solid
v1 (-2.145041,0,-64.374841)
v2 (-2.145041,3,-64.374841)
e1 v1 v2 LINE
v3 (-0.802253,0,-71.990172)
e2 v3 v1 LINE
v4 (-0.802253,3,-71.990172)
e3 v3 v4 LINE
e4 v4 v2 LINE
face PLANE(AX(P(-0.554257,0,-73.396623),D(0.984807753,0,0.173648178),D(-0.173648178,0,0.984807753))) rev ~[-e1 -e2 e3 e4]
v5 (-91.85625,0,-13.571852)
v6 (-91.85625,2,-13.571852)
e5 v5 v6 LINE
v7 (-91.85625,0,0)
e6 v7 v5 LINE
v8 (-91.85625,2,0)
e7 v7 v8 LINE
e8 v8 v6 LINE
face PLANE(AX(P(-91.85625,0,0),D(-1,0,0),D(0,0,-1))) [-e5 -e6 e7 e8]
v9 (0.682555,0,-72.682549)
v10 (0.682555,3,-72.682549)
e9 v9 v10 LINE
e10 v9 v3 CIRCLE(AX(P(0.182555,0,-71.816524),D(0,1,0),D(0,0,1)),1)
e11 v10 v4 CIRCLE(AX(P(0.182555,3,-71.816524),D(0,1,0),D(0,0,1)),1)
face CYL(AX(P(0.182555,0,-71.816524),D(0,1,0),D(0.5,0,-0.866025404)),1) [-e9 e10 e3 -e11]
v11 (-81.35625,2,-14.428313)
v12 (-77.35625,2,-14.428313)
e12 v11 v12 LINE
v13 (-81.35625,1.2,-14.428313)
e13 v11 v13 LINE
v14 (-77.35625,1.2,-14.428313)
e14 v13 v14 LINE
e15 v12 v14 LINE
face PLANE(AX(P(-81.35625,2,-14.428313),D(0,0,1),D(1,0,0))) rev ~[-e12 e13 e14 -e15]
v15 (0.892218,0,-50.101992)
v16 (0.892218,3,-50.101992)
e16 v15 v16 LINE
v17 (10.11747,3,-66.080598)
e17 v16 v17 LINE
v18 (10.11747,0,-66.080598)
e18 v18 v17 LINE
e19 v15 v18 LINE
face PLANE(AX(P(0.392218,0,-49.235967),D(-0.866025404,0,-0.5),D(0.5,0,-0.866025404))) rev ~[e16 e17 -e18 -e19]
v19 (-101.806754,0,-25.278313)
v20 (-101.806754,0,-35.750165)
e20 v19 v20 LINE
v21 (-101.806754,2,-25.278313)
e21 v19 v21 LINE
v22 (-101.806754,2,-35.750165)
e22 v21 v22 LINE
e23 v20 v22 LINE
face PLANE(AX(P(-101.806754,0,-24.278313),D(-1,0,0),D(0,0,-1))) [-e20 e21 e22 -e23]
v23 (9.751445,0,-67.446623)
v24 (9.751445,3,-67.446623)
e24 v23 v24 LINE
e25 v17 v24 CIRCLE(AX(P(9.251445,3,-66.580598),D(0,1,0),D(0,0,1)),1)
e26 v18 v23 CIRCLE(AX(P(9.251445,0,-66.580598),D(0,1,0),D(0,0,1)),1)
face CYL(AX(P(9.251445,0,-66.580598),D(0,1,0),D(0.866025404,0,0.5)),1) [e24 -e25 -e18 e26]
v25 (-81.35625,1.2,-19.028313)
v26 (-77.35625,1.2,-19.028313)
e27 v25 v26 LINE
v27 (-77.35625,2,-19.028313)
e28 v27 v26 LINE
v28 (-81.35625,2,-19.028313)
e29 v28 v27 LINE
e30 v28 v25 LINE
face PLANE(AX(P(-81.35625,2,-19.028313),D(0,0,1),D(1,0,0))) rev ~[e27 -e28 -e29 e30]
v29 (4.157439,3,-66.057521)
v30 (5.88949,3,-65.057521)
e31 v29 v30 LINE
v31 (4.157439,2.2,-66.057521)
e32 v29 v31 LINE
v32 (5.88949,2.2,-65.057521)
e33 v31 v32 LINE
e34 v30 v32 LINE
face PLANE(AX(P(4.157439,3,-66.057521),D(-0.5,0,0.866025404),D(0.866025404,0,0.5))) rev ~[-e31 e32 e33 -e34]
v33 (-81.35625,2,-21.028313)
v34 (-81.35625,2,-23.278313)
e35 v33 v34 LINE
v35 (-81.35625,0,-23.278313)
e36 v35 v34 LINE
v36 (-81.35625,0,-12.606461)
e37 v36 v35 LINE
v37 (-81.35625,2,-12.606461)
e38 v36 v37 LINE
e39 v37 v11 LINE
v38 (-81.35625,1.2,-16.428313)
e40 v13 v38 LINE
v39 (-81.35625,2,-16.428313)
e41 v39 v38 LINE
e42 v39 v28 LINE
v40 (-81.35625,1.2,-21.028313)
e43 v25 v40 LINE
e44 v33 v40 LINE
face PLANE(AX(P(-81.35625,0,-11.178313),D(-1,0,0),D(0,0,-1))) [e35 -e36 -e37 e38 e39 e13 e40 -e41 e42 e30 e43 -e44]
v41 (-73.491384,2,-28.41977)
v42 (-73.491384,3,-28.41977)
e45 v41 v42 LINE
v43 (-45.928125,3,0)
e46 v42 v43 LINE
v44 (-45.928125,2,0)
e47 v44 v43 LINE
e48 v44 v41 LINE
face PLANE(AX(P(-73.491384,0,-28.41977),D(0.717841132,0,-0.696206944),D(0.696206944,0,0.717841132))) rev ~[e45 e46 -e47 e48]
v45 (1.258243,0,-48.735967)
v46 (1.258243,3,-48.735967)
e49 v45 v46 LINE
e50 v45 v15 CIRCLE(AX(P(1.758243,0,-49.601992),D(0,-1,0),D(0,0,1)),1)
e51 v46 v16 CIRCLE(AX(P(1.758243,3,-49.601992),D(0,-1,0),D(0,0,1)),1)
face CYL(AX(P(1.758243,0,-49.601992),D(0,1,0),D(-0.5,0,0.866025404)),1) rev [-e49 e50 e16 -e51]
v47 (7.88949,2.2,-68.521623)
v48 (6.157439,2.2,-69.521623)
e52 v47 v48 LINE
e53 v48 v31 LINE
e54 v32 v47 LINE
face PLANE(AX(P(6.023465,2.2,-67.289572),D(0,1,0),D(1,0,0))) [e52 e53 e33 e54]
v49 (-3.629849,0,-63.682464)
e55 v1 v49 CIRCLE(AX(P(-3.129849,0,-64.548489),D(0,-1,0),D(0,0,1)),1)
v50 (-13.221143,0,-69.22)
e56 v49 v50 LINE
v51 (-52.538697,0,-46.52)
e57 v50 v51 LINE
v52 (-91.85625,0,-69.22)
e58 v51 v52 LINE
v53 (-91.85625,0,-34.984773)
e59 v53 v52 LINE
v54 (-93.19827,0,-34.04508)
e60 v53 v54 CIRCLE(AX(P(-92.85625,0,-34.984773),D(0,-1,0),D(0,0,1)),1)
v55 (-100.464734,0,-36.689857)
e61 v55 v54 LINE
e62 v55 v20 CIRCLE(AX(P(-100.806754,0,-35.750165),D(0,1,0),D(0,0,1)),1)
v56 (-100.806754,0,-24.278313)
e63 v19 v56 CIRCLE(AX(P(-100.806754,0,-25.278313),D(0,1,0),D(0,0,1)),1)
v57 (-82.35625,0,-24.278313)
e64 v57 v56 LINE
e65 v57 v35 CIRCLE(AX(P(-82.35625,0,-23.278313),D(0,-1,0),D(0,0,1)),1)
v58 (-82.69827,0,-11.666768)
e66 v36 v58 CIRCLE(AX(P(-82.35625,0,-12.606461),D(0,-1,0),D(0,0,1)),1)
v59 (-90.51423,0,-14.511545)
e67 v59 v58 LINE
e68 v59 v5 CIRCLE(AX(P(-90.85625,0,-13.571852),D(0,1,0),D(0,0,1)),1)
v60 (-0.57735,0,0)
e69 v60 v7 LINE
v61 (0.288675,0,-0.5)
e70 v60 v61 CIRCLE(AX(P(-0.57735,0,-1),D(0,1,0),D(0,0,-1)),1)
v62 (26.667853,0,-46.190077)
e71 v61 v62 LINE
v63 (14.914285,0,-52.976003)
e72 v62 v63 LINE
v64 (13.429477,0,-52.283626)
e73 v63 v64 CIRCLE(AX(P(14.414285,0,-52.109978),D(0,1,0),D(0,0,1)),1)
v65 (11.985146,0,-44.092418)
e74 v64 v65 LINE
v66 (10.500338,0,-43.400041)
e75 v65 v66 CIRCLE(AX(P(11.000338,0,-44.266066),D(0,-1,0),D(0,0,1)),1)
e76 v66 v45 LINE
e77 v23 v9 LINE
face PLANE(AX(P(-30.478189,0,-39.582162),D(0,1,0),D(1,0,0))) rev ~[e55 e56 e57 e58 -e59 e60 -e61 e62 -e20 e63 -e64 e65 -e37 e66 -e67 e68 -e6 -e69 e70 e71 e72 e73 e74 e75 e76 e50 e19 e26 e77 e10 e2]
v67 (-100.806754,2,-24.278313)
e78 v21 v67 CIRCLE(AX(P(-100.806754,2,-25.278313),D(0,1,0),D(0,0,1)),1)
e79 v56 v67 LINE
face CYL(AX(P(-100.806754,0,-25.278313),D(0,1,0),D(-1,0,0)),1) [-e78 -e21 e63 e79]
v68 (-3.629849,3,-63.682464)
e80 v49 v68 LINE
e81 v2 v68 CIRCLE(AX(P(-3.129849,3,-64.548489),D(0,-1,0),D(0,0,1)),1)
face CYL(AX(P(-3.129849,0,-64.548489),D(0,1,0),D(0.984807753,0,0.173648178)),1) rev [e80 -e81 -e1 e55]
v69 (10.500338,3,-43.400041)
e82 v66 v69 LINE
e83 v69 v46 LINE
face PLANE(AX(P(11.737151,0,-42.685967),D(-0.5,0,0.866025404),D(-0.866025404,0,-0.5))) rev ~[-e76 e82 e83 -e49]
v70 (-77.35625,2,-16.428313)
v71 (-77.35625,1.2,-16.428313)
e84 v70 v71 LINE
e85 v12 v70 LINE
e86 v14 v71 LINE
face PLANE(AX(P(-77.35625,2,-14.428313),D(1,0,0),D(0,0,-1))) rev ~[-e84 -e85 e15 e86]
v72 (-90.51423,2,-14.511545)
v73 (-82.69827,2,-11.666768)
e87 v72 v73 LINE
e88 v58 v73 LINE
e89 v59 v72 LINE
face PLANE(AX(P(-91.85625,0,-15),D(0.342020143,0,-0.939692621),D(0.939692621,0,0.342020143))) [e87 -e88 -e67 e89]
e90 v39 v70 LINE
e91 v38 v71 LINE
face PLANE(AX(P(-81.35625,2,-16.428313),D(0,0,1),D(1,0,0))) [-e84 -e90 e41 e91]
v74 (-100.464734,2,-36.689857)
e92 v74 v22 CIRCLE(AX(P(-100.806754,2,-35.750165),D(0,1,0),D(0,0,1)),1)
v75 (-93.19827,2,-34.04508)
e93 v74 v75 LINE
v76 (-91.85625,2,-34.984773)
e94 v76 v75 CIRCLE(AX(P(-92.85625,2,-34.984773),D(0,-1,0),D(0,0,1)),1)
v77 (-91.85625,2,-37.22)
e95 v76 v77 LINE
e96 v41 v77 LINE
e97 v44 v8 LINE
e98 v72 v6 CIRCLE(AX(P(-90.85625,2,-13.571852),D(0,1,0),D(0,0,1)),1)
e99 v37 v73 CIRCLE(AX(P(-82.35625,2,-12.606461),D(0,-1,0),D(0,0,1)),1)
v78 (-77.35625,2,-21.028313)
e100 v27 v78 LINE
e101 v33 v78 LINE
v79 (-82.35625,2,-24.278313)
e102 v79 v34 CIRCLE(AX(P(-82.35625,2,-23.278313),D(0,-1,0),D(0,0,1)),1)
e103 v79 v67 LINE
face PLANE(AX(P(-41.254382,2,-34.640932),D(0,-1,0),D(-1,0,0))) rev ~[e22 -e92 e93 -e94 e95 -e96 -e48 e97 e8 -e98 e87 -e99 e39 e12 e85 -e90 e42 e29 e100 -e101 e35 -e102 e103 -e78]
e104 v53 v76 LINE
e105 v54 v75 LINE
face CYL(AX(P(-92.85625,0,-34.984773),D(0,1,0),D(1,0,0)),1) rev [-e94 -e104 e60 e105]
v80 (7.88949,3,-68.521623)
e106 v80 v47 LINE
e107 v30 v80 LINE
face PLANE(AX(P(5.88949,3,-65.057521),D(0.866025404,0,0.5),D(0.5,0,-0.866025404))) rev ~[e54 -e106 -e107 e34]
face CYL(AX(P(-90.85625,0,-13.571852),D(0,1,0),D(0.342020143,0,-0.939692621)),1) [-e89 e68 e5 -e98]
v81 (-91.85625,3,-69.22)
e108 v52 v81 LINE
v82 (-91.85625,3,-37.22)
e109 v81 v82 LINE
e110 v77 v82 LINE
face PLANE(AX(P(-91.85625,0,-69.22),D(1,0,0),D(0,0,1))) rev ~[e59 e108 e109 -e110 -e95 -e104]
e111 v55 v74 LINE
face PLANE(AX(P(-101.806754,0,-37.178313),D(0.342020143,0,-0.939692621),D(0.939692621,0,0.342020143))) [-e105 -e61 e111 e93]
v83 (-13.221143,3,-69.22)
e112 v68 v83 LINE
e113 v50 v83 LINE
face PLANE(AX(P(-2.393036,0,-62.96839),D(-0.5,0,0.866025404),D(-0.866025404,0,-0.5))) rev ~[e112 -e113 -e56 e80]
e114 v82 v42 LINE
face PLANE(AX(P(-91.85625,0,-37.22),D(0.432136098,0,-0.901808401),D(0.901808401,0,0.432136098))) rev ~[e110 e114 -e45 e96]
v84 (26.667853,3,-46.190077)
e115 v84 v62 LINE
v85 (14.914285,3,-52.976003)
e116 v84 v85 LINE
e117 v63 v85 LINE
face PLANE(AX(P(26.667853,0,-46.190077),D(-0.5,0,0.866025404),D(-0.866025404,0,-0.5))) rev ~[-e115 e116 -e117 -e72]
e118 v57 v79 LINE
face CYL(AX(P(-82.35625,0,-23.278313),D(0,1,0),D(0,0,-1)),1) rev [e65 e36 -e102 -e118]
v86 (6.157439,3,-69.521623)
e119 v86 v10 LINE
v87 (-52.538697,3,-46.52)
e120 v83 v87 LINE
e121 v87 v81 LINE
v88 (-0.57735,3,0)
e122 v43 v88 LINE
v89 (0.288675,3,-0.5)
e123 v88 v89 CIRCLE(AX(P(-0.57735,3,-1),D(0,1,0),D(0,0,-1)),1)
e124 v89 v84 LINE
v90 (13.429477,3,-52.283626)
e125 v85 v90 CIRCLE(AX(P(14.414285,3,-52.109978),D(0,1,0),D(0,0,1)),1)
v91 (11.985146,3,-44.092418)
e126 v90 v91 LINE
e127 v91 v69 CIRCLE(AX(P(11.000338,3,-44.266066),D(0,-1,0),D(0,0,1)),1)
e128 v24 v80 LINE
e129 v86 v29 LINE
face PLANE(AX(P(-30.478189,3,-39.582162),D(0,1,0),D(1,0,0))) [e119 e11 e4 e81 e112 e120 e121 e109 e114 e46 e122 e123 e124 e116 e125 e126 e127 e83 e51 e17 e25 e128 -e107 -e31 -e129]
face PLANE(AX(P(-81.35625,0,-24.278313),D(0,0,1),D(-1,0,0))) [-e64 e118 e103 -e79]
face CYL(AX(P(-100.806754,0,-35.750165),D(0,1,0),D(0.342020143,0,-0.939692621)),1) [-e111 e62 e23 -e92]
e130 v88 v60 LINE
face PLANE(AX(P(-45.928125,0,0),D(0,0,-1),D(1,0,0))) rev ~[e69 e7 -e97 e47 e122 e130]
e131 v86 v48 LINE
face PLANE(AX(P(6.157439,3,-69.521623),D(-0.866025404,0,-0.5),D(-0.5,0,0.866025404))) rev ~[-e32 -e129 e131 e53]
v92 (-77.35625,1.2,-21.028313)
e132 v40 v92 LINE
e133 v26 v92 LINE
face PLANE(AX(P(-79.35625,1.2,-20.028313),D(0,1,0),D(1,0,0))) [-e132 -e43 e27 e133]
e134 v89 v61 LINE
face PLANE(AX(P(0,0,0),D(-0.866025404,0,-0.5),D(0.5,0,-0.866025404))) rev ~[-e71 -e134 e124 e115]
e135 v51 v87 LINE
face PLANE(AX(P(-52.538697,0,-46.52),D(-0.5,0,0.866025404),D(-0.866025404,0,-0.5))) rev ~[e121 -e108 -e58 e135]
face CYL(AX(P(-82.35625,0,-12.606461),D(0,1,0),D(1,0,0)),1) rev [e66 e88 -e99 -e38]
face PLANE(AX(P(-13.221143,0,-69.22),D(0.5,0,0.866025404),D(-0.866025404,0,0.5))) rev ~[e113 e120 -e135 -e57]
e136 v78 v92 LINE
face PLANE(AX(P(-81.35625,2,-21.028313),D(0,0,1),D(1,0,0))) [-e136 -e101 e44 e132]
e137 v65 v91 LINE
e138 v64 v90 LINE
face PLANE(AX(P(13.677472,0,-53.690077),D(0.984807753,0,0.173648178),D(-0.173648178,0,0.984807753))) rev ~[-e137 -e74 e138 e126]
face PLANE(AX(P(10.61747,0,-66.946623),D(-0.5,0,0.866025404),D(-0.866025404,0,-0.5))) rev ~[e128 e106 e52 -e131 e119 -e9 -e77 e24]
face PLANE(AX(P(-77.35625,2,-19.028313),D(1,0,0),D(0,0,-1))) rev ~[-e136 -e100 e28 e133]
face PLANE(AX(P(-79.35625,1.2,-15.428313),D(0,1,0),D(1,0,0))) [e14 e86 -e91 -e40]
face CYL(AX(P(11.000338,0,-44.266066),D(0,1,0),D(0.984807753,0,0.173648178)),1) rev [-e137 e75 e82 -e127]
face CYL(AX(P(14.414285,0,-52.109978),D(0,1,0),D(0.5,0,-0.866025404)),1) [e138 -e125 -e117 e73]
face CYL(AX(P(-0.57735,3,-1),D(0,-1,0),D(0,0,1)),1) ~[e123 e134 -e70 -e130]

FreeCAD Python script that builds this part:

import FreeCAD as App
import Part
import Sketcher
Q = App.Units.Quantity


def edges_at(feature, points):
    """Names of the edges that pass closest to the given points."""
    edges = feature.Shape.Edges
    near = lambda p: min(range(len(edges)), key=lambda i: edges[i].distToShape(Part.Vertex(*p))[0])
    return sorted({f"Edge{near(p) + 1}" for p in points})


def add_polygon(sketch, points):
    """Adds a closed chain of lines whose ends are joined by coincident constraints."""
    first, n = sketch.GeometryCount, len(points)
    for a, b in zip(points, points[1:] + points[:1]):
        sketch.addGeometry(Part.LineSegment(App.Vector(*a, 0), App.Vector(*b, 0)), False)
    for i in range(n):
        sketch.addConstraint(Sketcher.Constraint("Coincident", first + i, 2, first + (i + 1) % n, 1))

doc = App.newDocument("Part")
params = doc.addObject("Spreadsheet::Sheet", "Params")
for row, (alias, value) in enumerate([
    ("sketch1_height", "32 mm"),
    ("sketch1_length", "15 mm"),
    ("sketch1_length2", "13.1 mm"),
    ("sketch1_length3", "12.9 mm"),
    ("sketch1_length4", "45.4 mm"),
    ("pad1_length", "3 mm"),
    ("sketch2_height", "15 mm"),
    ("sketch2_length", "15 mm"),
    ("sketch2_height2", "12.9 mm"),
    ("sketch2_height3", "13.1 mm"),
    ("sketch2_length2", "13.1 mm"),
    ("pad2_length", "2 mm"),
    ("fillet_radius", "1 mm"),
    ("sketch3_width", "4 mm"),
    ("sketch3_height", "2 mm"),
    ("pocket1_length", "0.8 mm"),
    ("sketch4_length", "2 mm"),
    ("sketch4_length2", "4 mm"),
    ("pocket2_length", "0.8 mm"),
], start=1):
    params.set(f"A{row}", alias)
    params.set(f"B{row}", "=" + value)
    params.setAlias(f"B{row}", alias)

body = doc.addObject("PartDesign::Body", "Body")

# Sketch on XZ plane
sketch1 = doc.addObject("Sketcher::SketchObject", "Sketch")
body.addObject(sketch1)
sketch1.AttachmentSupport = (doc.XZ_Plane, [""])
sketch1.MapMode = "FlatFace"
add_polygon(sketch1, [(27, -46), (14, -54), (12, -43), (0, -49), (11, -67), (-1, -73), (-2, -63), (-13, -69), (-53, -47), (-92, -69), (-92, -37), (-73, -28), (-46, 0), (0, 0)])  # lines 0-13
sketch1.addConstraint([
    Sketcher.Constraint("Vertical", 9),
    Sketcher.Constraint("Horizontal", 12),
    Sketcher.Constraint("Coincident", 12, 2, -1, 1),
    Sketcher.Constraint("Parallel", 0, 2),
    Sketcher.Constraint("Perpendicular", 2, 3),
    Sketcher.Constraint("Perpendicular", 3, 4),
    Sketcher.Constraint("Parallel", 1, 5),
    Sketcher.Constraint("Parallel", 4, 6),
    Sketcher.Constraint("Parallel", 6, 8),
    Sketcher.Constraint("Perpendicular", 8, 13),
    Sketcher.Constraint("Horizontal", 6, 2, 8, 2),
    Sketcher.Constraint("Equal", 7, 8),
    Sketcher.Constraint("DistanceY", 9, 1, 9, 2, 32.0),
    Sketcher.Constraint("Angle", 0, Q("-150 deg")),
    Sketcher.Constraint("Angle", 1, Q("100 deg")),
    Sketcher.Constraint("Distance", 0, 15.0),
    Sketcher.Constraint("Distance", 2, 13.1),
    Sketcher.Constraint("Distance", 4, 12.9),
    Sketcher.Constraint("Distance", 7, 45.4),
    Sketcher.Constraint("DistanceY", 6, 2, -1, 1, 69.22),
    Sketcher.Constraint("Distance", 6, 12.503221),
    Sketcher.Constraint("DistanceX", 12, 1, 12, 2, 45.928125),
    Sketcher.Constraint("DistanceX", -1, 1, 1, 2, 11.737151),
    Sketcher.Constraint("DistanceX", -1, 1, 3, 2, 10.61747),
    Sketcher.Constraint("DistanceX", 8, 2, -1, 1, 91.85625),
    Sketcher.Constraint("DistanceY", 10, 2, -1, 1, 28.41977),
    Sketcher.Constraint("DistanceX", 10, 2, 6, 2, 60.270241),
])
sketch1.setExpression("Constraints[26]", "Params.sketch1_height")
sketch1.setExpression("Constraints[29]", "Params.sketch1_length")
sketch1.setExpression("Constraints[30]", "Params.sketch1_length2")
sketch1.setExpression("Constraints[31]", "Params.sketch1_length3")
sketch1.setExpression("Constraints[32]", "Params.sketch1_length4")
pad1 = doc.addObject("PartDesign::Pad", "Pad")
body.addObject(pad1)
pad1.Profile = sketch1
pad1.setExpression("Length", "Params.pad1_length")
pad1.Reversed = True

# Sketch on XZ plane
sketch2 = doc.addObject("Sketcher::SketchObject", "Sketch001")
body.addObject(sketch2)
sketch2.AttachmentSupport = (doc.XZ_Plane, [""])
sketch2.MapMode = "FlatFace"
add_polygon(sketch2, [(27, -46), (14, -54), (12, -43), (0, -49), (11, -67), (-1, -73), (-2, -63), (-13, -69), (-53, -47), (-92, -69), (-92, -34), (-102, -37), (-102, -24), (-81, -24), (-81, -11), (-92, -15), (-92, 0), (0, 0)])  # lines 0-17
sketch2.addConstraint([
    Sketcher.Constraint("Vertical", 9),
    Sketcher.Constraint("Vertical", 11),
    Sketcher.Constraint("Horizontal", 12),
    Sketcher.Constraint("Vertical", 13),
    Sketcher.Constraint("Vertical", 15),
    Sketcher.Constraint("Horizontal", 16),
    Sketcher.Constraint("Coincident", 16, 2, -1, 1),
    Sketcher.Constraint("Parallel", 0, 2),
    Sketcher.Constraint("Perpendicular", 2, 3),
    Sketcher.Constraint("Perpendicular", 3, 4),
    Sketcher.Constraint("Parallel", 1, 5),
    Sketcher.Constraint("Parallel", 4, 6),
    Sketcher.Constraint("Parallel", 6, 8),
    Sketcher.Constraint("Parallel", 10, 14),
    Sketcher.Constraint("Perpendicular", 8, 17),
    Sketcher.Constraint("Horizontal", 6, 2, 8, 2),
    Sketcher.Constraint("Vertical", 9, 2, 14, 2),
    Sketcher.Constraint("Equal", 7, 8),
    Sketcher.Constraint("Equal", 5, 10),
    Sketcher.Constraint("Equal", 1, 14),
    Sketcher.Constraint("DistanceY", 15, 1, 15, 2, 15.0),
    Sketcher.Constraint("Angle", 0, Q("-150 deg")),
    Sketcher.Constraint("Angle", 1, Q("100 deg")),
    Sketcher.Constraint("Angle", 10, Q("-160 deg")),
    Sketcher.Constraint("Distance", 0, 15.0),
    Sketcher.Constraint("DistanceY", 11, 1, 11, 2, 12.9),
    Sketcher.Constraint("DistanceY", 13, 1, 13, 2, 13.1),
    Sketcher.Constraint("Distance", 2, 13.1),
    Sketcher.Constraint("Distance", 4, 12.9),
    Sketcher.Constraint("Distance", 7, 45.4),
    Sketcher.Constraint("DistanceX", 9, 2, 12, 2, 10.5),
    Sketcher.Constraint("DistanceY", 6, 2, -1, 1, 69.22),
    Sketcher.Constraint("DistanceX", 16, 1, 16, 2, 91.85625),
    Sketcher.Constraint("Distance", 6, 12.503221),
    Sketcher.Constraint("DistanceX", -1, 1, 1, 2, 11.737151),
])
sketch2.setExpression("Constraints[38]", "Params.sketch2_height")
sketch2.setExpression("Constraints[42]", "Params.sketch2_length")
sketch2.setExpression("Constraints[43]", "Params.sketch2_height2")
sketch2.setExpression("Constraints[44]", "Params.sketch2_height3")
sketch2.setExpression("Constraints[45]", "Params.sketch2_length2")
pad2 = doc.addObject("PartDesign::Pad", "Pad001")
body.addObject(pad2)
pad2.Profile = sketch2
pad2.setExpression("Length", "Params.pad2_length")
pad2.Reversed = True
doc.recompute()

fillet = doc.addObject("PartDesign::Fillet", "Fillet")
body.addObject(fillet)
fillet.Base = (pad2, edges_at(pad2, [
    (10.617, 1.5, -66.947),
    (0.392, 1.5, -49.236),
    (11.737, 1.5, -42.686),
    (13.677, 1.5, -53.69),
    (0, 1.5, 0),
    (-2.393, 1.5, -62.968),
    (-0.554, 1.5, -73.397),
    (-91.856, 1, -33.557),
    (-101.807, 1, -37.178),
    (-101.807, 1, -24.278),
    (-81.356, 1, -24.278),
    (-81.356, 1, -11.178),
    (-91.856, 1, -15),
]))
fillet.setExpression("Radius", "Params.fillet_radius")

# Sketch on XZ plane
sketch3 = doc.addObject("Sketcher::SketchObject", "Sketch002")
body.addObject(sketch3)
sketch3.AttachmentSupport = (doc.XZ_Plane, [""])
sketch3.MapMode = "FlatFace"
sketch3.AttachmentOffset = App.Placement(App.Vector(0, 0, -2), App.Rotation())
add_polygon(sketch3, [(-81.4, -21), (-81.4, -19), (-77.4, -19), (-77.4, -21)])  # lines 0-3
add_polygon(sketch3, [(-81.4, -16.4), (-81.4, -14.4), (-77.4, -14.4), (-77.4, -16.4)])  # lines 4-7
sketch3.addConstraint([
    Sketcher.Constraint("Vertical", 0),
    Sketcher.Constraint("Horizontal", 1),
    Sketcher.Constraint("Vertical", 2),
    Sketcher.Constraint("Horizontal", 3),
    Sketcher.Constraint("Vertical", 4),
    Sketcher.Constraint("Horizontal", 5),
    Sketcher.Constraint("Vertical", 6),
    Sketcher.Constraint("Horizontal", 7),
    Sketcher.Constraint("Vertical", 3, 2, 4, 2),
    Sketcher.Constraint("Vertical", 2, 2, 5, 2),
    Sketcher.Constraint("Equal", 2, 4),
    Sketcher.Constraint("DistanceX", 1, 1, 1, 2, 4.0),
    Sketcher.Constraint("DistanceY", 0, 1, 0, 2, 2.0),
    Sketcher.Constraint("DistanceY", 0, 2, 4, 2, 4.6),
    Sketcher.Constraint("DistanceX", 0, 2, -1, 1, 81.35625),
    Sketcher.Constraint("DistanceY", 0, 2, -1, 1, 19.028313),
])
sketch3.setExpression("Constraints[19]", "Params.sketch3_width")
sketch3.setExpression("Constraints[20]", "Params.sketch3_height")
pocket1 = doc.addObject("PartDesign::Pocket", "Pocket")
body.addObject(pocket1)
pocket1.Profile = sketch3
pocket1.setExpression("Length", "Params.pocket1_length")
pocket1.Reversed = True

# Sketch on XZ plane
sketch4 = doc.addObject("Sketcher::SketchObject", "Sketch003")
body.addObject(sketch4)
sketch4.AttachmentSupport = (doc.XZ_Plane, [""])
sketch4.MapMode = "FlatFace"
sketch4.AttachmentOffset = App.Placement(App.Vector(0, 0, -3), App.Rotation())
add_polygon(sketch4, [(4.2, -66.1), (5.9, -65.1), (7.9, -68.5), (6.2, -69.5)])  # lines 0-3
sketch4.addConstraint([
    Sketcher.Constraint("Perpendicular", 0, 1),
    Sketcher.Constraint("Perpendicular", 1, 2),
    Sketcher.Constraint("Perpendicular", 2, 3),
    Sketcher.Constraint("Angle", 0, Q("30 deg")),
    Sketcher.Constraint("Distance", 0, 2.0),
    Sketcher.Constraint("Distance", 1, 4.0),
    Sketcher.Constraint("DistanceX", -1, 1, 0, 2, 5.88949),
    Sketcher.Constraint("DistanceY", 0, 2, -1, 1, 65.057521),
])
sketch4.setExpression("Constraints[8]", "Params.sketch4_length")
sketch4.setExpression("Constraints[9]", "Params.sketch4_length2")
pocket2 = doc.addObject("PartDesign::Pocket", "Pocket001")
body.addObject(pocket2)
pocket2.Profile = sketch4
pocket2.setExpression("Length", "Params.pocket2_length")
pocket2.Reversed = True

doc.recompute()
